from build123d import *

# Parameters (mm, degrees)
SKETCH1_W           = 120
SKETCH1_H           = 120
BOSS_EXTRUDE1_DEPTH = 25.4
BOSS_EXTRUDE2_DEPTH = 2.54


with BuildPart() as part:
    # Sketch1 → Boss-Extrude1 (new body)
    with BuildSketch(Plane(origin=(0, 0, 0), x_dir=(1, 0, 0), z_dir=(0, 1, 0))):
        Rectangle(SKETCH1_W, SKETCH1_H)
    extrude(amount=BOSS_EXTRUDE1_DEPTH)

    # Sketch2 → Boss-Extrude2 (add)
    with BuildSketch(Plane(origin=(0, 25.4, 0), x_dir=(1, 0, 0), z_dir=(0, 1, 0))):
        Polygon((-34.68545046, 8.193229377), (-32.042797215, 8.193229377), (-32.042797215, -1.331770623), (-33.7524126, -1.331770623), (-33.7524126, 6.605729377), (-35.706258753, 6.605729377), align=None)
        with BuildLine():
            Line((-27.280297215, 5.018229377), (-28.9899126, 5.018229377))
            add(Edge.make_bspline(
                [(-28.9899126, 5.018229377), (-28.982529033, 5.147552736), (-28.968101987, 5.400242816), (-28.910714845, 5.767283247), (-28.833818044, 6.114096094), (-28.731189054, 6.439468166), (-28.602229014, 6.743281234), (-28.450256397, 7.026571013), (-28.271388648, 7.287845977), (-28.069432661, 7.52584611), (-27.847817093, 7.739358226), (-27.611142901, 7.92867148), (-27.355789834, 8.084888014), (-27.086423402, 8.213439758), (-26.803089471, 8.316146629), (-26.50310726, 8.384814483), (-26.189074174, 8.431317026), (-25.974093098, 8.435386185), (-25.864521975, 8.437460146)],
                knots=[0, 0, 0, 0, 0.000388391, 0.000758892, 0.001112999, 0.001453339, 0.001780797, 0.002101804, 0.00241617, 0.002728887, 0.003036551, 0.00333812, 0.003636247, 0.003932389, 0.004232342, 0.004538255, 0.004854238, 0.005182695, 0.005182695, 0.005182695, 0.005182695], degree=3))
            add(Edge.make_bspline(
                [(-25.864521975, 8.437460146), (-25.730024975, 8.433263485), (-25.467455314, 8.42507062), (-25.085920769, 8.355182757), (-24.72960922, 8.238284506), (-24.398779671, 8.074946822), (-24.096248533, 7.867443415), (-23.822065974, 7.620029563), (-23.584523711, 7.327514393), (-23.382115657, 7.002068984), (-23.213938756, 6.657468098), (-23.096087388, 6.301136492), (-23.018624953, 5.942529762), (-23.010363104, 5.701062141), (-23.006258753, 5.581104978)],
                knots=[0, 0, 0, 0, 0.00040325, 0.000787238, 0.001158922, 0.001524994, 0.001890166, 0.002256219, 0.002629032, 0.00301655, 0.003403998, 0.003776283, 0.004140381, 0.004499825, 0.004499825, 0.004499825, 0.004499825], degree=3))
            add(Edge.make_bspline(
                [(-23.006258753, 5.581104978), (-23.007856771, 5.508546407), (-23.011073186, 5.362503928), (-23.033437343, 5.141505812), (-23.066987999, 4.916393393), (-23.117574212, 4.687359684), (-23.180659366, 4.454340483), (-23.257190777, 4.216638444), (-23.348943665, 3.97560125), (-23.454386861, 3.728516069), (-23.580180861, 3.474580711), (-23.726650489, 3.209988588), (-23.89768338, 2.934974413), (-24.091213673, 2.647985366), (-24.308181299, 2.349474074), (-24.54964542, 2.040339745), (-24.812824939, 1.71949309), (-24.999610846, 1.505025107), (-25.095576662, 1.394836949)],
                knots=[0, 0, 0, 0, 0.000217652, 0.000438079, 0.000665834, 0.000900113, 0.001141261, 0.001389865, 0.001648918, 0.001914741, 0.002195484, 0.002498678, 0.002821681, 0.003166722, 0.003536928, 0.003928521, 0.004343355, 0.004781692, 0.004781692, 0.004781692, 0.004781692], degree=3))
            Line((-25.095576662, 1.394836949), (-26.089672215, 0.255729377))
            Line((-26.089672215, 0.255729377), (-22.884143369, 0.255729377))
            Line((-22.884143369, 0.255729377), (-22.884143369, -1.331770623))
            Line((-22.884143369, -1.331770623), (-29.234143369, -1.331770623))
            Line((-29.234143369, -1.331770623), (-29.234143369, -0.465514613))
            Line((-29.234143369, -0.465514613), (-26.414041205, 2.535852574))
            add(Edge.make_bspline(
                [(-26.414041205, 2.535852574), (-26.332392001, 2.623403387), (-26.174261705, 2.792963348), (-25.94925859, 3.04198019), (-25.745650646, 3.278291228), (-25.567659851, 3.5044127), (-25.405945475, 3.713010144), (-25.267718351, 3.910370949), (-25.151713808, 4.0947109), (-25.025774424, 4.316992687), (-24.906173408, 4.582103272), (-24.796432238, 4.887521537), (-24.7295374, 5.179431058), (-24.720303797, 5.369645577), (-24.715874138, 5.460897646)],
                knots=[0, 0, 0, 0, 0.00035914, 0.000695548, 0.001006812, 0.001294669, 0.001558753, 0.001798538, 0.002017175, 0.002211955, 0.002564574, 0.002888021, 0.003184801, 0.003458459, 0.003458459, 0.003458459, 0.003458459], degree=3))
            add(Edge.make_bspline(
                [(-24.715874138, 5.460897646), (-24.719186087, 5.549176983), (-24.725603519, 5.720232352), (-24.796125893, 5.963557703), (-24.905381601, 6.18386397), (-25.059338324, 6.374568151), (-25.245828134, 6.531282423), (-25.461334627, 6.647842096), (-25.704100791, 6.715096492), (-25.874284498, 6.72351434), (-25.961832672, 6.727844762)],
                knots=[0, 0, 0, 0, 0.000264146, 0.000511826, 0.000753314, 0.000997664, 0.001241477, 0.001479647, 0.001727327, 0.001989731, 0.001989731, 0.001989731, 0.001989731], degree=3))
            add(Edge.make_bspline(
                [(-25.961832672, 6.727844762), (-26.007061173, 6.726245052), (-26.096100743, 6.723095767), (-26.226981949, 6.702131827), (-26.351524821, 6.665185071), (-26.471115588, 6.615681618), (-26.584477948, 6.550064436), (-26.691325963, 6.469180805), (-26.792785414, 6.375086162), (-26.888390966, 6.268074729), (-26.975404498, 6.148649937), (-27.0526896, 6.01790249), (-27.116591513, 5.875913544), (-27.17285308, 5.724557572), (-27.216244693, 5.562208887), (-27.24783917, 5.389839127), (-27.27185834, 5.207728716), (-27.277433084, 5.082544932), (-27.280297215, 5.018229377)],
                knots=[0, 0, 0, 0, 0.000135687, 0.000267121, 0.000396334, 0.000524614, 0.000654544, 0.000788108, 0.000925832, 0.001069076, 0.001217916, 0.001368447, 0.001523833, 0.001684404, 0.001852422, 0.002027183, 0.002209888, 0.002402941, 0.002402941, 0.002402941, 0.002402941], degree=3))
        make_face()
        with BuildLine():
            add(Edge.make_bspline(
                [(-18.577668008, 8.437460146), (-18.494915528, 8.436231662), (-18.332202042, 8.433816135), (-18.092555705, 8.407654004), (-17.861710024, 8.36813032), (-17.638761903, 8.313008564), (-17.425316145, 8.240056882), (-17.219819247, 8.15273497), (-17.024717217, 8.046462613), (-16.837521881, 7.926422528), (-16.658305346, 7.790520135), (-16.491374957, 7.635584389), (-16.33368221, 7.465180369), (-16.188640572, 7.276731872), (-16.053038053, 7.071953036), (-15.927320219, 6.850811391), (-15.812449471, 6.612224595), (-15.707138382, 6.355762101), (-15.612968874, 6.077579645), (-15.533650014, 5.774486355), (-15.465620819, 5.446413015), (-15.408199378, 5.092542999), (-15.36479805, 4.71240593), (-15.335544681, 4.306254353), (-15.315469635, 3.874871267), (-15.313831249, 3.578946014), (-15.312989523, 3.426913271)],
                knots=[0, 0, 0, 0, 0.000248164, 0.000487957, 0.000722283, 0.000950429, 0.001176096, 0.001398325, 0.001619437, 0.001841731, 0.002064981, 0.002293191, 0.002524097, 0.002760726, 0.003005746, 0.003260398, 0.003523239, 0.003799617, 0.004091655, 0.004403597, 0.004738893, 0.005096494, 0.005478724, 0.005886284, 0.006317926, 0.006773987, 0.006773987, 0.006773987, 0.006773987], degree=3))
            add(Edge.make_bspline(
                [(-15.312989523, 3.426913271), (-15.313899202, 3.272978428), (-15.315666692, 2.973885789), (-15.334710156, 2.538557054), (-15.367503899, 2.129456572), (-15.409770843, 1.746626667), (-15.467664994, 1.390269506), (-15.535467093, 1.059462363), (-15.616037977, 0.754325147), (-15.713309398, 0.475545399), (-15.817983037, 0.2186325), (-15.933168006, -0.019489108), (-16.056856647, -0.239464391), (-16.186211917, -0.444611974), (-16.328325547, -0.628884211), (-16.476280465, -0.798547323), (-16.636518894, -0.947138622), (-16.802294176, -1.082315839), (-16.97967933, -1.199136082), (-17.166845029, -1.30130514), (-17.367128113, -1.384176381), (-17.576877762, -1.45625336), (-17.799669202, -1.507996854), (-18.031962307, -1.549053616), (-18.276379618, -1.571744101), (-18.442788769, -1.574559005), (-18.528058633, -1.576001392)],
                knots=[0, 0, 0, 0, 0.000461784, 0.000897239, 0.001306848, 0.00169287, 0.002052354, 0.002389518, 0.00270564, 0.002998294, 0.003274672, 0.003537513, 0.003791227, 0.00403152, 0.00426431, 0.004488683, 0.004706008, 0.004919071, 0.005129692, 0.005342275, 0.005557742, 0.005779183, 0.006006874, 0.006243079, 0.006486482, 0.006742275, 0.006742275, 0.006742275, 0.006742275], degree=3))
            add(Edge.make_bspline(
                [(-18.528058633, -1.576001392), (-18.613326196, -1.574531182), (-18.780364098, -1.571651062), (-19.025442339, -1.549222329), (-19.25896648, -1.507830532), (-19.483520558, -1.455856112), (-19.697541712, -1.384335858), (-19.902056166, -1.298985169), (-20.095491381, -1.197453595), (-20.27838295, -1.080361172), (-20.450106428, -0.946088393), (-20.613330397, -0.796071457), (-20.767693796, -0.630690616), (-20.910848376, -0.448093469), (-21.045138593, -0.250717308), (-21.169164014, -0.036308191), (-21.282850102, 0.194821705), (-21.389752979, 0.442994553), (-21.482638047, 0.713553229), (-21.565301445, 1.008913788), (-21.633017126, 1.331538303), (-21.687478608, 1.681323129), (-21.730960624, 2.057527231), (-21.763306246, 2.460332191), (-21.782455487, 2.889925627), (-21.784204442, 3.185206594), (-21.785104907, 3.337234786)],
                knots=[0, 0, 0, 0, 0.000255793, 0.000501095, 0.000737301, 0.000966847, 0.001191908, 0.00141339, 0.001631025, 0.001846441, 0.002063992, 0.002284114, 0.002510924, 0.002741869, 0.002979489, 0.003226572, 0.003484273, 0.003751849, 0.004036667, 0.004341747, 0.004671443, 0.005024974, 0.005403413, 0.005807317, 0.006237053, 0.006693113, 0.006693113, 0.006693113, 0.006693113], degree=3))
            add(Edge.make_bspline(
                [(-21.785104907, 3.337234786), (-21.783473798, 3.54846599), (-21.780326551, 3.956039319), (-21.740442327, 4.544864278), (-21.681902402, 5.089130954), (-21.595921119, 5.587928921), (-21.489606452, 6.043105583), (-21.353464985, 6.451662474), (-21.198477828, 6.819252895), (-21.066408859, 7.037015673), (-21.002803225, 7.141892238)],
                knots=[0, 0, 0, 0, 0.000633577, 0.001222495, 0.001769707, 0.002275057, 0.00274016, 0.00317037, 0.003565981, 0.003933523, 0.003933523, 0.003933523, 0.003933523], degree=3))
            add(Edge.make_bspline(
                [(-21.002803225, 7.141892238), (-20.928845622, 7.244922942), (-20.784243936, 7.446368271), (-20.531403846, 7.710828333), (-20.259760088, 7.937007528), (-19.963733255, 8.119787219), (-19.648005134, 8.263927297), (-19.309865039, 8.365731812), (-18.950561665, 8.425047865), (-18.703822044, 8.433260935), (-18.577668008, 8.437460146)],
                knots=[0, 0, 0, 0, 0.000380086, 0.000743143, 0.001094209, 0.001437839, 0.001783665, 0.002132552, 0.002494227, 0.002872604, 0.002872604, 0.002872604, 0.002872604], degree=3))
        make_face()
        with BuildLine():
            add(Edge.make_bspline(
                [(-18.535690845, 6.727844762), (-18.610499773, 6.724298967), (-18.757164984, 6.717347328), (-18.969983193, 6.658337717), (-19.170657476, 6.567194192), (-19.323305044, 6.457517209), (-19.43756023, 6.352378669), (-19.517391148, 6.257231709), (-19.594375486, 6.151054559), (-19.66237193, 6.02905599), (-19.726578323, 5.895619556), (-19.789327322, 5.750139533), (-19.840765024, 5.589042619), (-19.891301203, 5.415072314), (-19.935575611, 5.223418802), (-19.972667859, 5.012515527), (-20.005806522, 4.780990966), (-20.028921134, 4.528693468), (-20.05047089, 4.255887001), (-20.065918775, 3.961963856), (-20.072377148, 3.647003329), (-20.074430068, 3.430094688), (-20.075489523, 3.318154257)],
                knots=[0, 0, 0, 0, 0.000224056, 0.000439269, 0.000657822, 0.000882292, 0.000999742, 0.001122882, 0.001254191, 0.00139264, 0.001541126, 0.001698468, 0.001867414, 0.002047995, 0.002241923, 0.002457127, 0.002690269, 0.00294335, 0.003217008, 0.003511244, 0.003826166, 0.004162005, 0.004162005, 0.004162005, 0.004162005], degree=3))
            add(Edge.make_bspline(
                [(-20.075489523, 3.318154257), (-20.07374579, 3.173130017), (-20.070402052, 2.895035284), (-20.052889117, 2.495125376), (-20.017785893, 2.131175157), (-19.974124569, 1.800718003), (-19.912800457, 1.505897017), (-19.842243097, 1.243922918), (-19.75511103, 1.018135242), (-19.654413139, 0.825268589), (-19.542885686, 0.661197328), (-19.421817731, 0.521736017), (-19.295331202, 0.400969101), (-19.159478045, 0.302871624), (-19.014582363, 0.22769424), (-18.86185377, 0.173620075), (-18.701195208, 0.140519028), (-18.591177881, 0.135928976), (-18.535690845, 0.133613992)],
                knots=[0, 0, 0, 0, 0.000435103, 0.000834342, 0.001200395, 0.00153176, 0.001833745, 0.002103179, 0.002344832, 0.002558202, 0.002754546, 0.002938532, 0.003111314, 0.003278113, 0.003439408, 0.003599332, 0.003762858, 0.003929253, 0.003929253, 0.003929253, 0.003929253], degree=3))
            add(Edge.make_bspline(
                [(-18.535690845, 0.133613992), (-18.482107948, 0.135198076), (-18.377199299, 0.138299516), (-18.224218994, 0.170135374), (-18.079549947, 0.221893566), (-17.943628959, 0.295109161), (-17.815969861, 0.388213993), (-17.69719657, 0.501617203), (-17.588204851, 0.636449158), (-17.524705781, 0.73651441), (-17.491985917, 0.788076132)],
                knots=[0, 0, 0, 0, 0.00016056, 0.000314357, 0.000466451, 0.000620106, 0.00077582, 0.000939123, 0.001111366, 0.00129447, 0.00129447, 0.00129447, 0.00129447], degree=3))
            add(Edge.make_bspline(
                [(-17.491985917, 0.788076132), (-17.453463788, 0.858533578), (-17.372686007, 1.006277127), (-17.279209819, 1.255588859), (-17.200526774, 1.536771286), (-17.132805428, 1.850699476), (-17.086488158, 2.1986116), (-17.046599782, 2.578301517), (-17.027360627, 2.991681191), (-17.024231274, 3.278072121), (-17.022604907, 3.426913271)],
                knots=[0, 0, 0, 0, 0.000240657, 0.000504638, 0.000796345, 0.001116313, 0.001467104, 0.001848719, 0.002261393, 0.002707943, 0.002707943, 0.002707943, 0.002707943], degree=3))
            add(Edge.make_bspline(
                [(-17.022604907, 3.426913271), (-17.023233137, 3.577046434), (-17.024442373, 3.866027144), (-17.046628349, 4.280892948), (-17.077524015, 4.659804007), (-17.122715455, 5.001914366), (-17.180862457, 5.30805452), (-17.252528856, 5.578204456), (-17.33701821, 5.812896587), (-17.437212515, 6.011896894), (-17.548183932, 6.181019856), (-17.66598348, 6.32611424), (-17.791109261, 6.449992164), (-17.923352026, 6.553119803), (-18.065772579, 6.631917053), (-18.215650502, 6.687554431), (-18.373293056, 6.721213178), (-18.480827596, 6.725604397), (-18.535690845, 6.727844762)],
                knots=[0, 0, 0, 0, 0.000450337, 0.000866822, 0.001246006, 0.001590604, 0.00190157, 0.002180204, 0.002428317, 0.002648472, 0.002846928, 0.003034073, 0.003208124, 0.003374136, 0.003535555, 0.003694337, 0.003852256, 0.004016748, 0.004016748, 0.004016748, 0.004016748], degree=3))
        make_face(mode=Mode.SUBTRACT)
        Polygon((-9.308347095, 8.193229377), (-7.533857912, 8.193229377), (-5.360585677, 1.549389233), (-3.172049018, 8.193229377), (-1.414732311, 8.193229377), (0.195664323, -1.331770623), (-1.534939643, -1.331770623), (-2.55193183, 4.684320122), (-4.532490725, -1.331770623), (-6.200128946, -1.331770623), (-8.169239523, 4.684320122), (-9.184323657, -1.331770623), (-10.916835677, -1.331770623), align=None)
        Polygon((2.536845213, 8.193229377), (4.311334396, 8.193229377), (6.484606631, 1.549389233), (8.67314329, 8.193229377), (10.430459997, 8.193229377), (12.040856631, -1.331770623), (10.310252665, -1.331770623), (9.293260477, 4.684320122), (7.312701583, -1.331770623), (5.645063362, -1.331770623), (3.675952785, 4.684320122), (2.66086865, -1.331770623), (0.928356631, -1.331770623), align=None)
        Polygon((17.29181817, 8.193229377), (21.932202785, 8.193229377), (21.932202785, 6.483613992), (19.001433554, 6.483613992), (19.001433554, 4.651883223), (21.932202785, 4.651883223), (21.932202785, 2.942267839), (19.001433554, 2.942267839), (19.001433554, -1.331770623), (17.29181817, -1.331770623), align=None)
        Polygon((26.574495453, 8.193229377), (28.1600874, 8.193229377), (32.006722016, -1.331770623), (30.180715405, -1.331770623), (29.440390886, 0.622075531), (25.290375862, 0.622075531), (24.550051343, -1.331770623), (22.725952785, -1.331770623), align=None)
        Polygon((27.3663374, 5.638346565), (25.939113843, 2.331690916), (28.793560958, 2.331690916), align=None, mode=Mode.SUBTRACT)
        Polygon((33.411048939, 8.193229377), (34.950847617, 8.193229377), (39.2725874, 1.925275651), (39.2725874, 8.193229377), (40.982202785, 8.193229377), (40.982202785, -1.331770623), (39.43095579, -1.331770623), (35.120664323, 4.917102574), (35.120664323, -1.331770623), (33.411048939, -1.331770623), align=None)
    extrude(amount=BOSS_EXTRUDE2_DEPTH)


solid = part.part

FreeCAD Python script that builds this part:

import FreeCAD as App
import Part
import Sketcher

V = App.Vector
Q = App.Units.Quantity


def add_polygon(sketch, points):
    """Adds a closed chain of lines whose ends are joined by coincident constraints."""
    first, n = sketch.GeometryCount, len(points)
    for a, b in zip(points, points[1:] + points[:1]):
        sketch.addGeometry(Part.LineSegment(App.Vector(*a, 0), App.Vector(*b, 0)), False)
    for i in range(n):
        sketch.addConstraint(Sketcher.Constraint("Coincident", first + i, 2, first + (i + 1) % n, 1))

doc = App.newDocument("Part")
body = doc.addObject("PartDesign::Body", "Body")

# Sketch on XZ plane
sketch1 = body.newObject("Sketcher::SketchObject", "Sketch")
sketch1.AttachmentSupport = (doc.getObject("XZ_Plane"), [""])
sketch1.MapMode = "FlatFace"
add_polygon(sketch1, [(-60, -60), (-60, 60), (60, 60), (60, -60)])  # lines 0-3
sketch1.addConstraint(Sketcher.Constraint("Vertical", 0))
sketch1.addConstraint(Sketcher.Constraint("Horizontal", 1))
sketch1.addConstraint(Sketcher.Constraint("Vertical", 2))
sketch1.addConstraint(Sketcher.Constraint("Horizontal", 3))
sketch1.addConstraint(Sketcher.Constraint("Symmetric", 0, 2, 2, 2, -1, 1))
sketch1.addConstraint(Sketcher.Constraint("Equal", 3, 0))
sketch1.addConstraint(Sketcher.Constraint("DistanceX", 1, 1, 1, 2, 120.0))
pad1 = body.newObject("PartDesign::Pad", "Pad")
pad1.Profile = sketch1
pad1.Length = Q("1 in")
pad1.Reversed = True

# Sketch on XZ plane
sketch2 = body.newObject("Sketcher::SketchObject", "Sketch001")
sketch2.AttachmentSupport = (doc.getObject("XZ_Plane"), [""])
sketch2.MapMode = "FlatFace"
sketch2.AttachmentOffset = App.Placement(V(0, 0, -1 * 25.4), App.Rotation())
add_polygon(sketch2, [(-32.042797, -8.193229), (-34.68545, -8.193229), (-35.706259, -6.605729), (-33.752413, -6.605729), (-33.752413, 1.331771), (-32.042797, 1.331771)])  # lines 0-5
sketch2.addGeometry(Part.LineSegment(V(-28.989913, -5.018229, 0), V(-27.280297, -5.018229, 0)), False)  # 6
sketch2.addGeometry(Part.BSplineCurve([V(-25.961833, -6.727845, 0), V(-26.007061, -6.726245, 0), V(-26.096101, -6.723096, 0), V(-26.226982, -6.702132, 0), V(-26.351525, -6.665185, 0), V(-26.471116, -6.615682, 0), V(-26.584478, -6.550064, 0), V(-26.691326, -6.469181, 0), V(-26.792785, -6.375086, 0), V(-26.888391, -6.268075, 0), V(-26.975404, -6.14865, 0), V(-27.05269, -6.017902, 0), V(-27.116592, -5.875914, 0), V(-27.172853, -5.724558, 0), V(-27.216245, -5.562209, 0), V(-27.247839, -5.389839, 0), V(-27.271858, -5.207729, 0), V(-27.277433, -5.082545, 0), V(-27.280297, -5.018229, 0)], [4, 1, 1, 1, 1, 1, 1, 1, 1, 1, 1, 1, 1, 1, 1, 1, 4], [0, 0.000135687, 0.000267121, 0.000396334, 0.000524614, 0.000654544, 0.000788108, 0.000925832, 0.001069076, 0.001217916, 0.001368447, 0.001523833, 0.001684404, 0.001852422, 0.002027183, 0.002209888, 0.002402941], False, 3, [1, 1, 1, 1, 1, 1, 1, 1, 1, 1, 1, 1, 1, 1, 1, 1, 1, 1, 1], False), False)  # 7
sketch2.addGeometry(Part.BSplineCurve([V(-24.715874, -5.460898, 0), V(-24.719186, -5.549177, 0), V(-24.725604, -5.720232, 0), V(-24.796126, -5.963558, 0), V(-24.905382, -6.183864, 0), V(-25.059338, -6.374568, 0), V(-25.245828, -6.531282, 0), V(-25.461335, -6.647842, 0), V(-25.704101, -6.715096, 0), V(-25.874284, -6.723514, 0), V(-25.961833, -6.727845, 0)], [4, 1, 1, 1, 1, 1, 1, 1, 4], [0, 0.000264146, 0.000511826, 0.000753314, 0.000997664, 0.001241477, 0.001479647, 0.001727327, 0.001989731], False, 3, [1, 1, 1, 1, 1, 1, 1, 1, 1, 1, 1], False), False)  # 8
sketch2.addGeometry(Part.BSplineCurve([V(-26.414041, -2.535853, 0), V(-26.332392, -2.623403, 0), V(-26.174262, -2.792963, 0), V(-25.949259, -3.04198, 0), V(-25.745651, -3.278291, 0), V(-25.56766, -3.504413, 0), V(-25.405945, -3.71301, 0), V(-25.267718, -3.910371, 0), V(-25.151714, -4.094711, 0), V(-25.025774, -4.316993, 0), V(-24.906173, -4.582103, 0), V(-24.796432, -4.887522, 0), V(-24.729537, -5.179431, 0), V(-24.720304, -5.369646, 0), V(-24.715874, -5.460898, 0)], [4, 1, 1, 1, 1, 1, 1, 1, 1, 1, 1, 1, 4], [0, 0.00035914, 0.000695548, 0.001006812, 0.001294669, 0.001558753, 0.001798538, 0.002017175, 0.002211955, 0.002564574, 0.002888021, 0.003184801, 0.003458459], False, 3, [1, 1, 1, 1, 1, 1, 1, 1, 1, 1, 1, 1, 1, 1, 1], False), False)  # 9
sketch2.addGeometry(Part.LineSegment(V(-26.414041, -2.535853, 0), V(-29.234143, 0.465515, 0)), False)  # 10
sketch2.addGeometry(Part.LineSegment(V(-29.234143, 0.465515, 0), V(-29.234143, 1.331771, 0)), False)  # 11
sketch2.addGeometry(Part.LineSegment(V(-29.234143, 1.331771, 0), V(-22.884143, 1.331771, 0)), False)  # 12
sketch2.addGeometry(Part.LineSegment(V(-22.884143, 1.331771, 0), V(-22.884143, -0.255729, 0)), False)  # 13
sketch2.addGeometry(Part.LineSegment(V(-22.884143, -0.255729, 0), V(-26.089672, -0.255729, 0)), False)  # 14
sketch2.addGeometry(Part.LineSegment(V(-26.089672, -0.255729, 0), V(-25.095577, -1.394837, 0)), False)  # 15
sketch2.addGeometry(Part.BSplineCurve([V(-23.006259, -5.581105, 0), V(-23.007857, -5.508546, 0), V(-23.011073, -5.362504, 0), V(-23.033437, -5.141506, 0), V(-23.066988, -4.916393, 0), V(-23.117574, -4.68736, 0), V(-23.180659, -4.45434, 0), V(-23.257191, -4.216638, 0), V(-23.348944, -3.975601, 0), V(-23.454387, -3.728516, 0), V(-23.580181, -3.474581, 0), V(-23.72665, -3.209989, 0), V(-23.897683, -2.934974, 0), V(-24.091214, -2.647985, 0), V(-24.308181, -2.349474, 0), V(-24.549645, -2.04034, 0), V(-24.812825, -1.719493, 0), V(-24.999611, -1.505025, 0), V(-25.095577, -1.394837, 0)], [4, 1, 1, 1, 1, 1, 1, 1, 1, 1, 1, 1, 1, 1, 1, 1, 4], [0, 0.000217652, 0.000438079, 0.000665834, 0.000900113, 0.001141261, 0.001389865, 0.001648918, 0.001914741, 0.002195484, 0.002498678, 0.002821681, 0.003166722, 0.003536928, 0.003928521, 0.004343355, 0.004781692], False, 3, [1, 1, 1, 1, 1, 1, 1, 1, 1, 1, 1, 1, 1, 1, 1, 1, 1, 1, 1], False), False)  # 16
sketch2.addGeometry(Part.BSplineCurve([V(-25.864522, -8.43746, 0), V(-25.730025, -8.433263, 0), V(-25.467455, -8.425071, 0), V(-25.085921, -8.355183, 0), V(-24.729609, -8.238285, 0), V(-24.39878, -8.074947, 0), V(-24.096249, -7.867443, 0), V(-23.822066, -7.62003, 0), V(-23.584524, -7.327514, 0), V(-23.382116, -7.002069, 0), V(-23.213939, -6.657468, 0), V(-23.096087, -6.301136, 0), V(-23.018625, -5.94253, 0), V(-23.010363, -5.701062, 0), V(-23.006259, -5.581105, 0)], [4, 1, 1, 1, 1, 1, 1, 1, 1, 1, 1, 1, 4], [0, 0.00040325, 0.000787238, 0.001158922, 0.001524994, 0.001890166, 0.002256219, 0.002629032, 0.00301655, 0.003403998, 0.003776283, 0.004140381, 0.004499825], False, 3, [1, 1, 1, 1, 1, 1, 1, 1, 1, 1, 1, 1, 1, 1, 1], False), False)  # 17
sketch2.addGeometry(Part.BSplineCurve([V(-28.989913, -5.018229, 0), V(-28.982529, -5.147553, 0), V(-28.968102, -5.400243, 0), V(-28.910715, -5.767283, 0), V(-28.833818, -6.114096, 0), V(-28.731189, -6.439468, 0), V(-28.602229, -6.743281, 0), V(-28.450256, -7.026571, 0), V(-28.271389, -7.287846, 0), V(-28.069433, -7.525846, 0), V(-27.847817, -7.739358, 0), V(-27.611143, -7.928671, 0), V(-27.35579, -8.084888, 0), V(-27.086423, -8.21344, 0), V(-26.803089, -8.316147, 0), V(-26.503107, -8.384814, 0), V(-26.189074, -8.431317, 0), V(-25.974093, -8.435386, 0), V(-25.864522, -8.43746, 0)], [4, 1, 1, 1, 1, 1, 1, 1, 1, 1, 1, 1, 1, 1, 1, 1, 4], [0, 0.000388391, 0.000758892, 0.001112999, 0.001453339, 0.001780797, 0.002101804, 0.00241617, 0.002728887, 0.003036551, 0.00333812, 0.003636247, 0.003932389, 0.004232342, 0.004538255, 0.004854238, 0.005182695], False, 3, [1, 1, 1, 1, 1, 1, 1, 1, 1, 1, 1, 1, 1, 1, 1, 1, 1, 1, 1], False), False)  # 18
sketch2.addGeometry(Part.BSplineCurve([V(-18.577668, -8.43746, 0), V(-18.494916, -8.436232, 0), V(-18.332202, -8.433816, 0), V(-18.092556, -8.407654, 0), V(-17.86171, -8.36813, 0), V(-17.638762, -8.313009, 0), V(-17.425316, -8.240057, 0), V(-17.219819, -8.152735, 0), V(-17.024717, -8.046463, 0), V(-16.837522, -7.926423, 0), V(-16.658305, -7.79052, 0), V(-16.491375, -7.635584, 0), V(-16.333682, -7.46518, 0), V(-16.188641, -7.276732, 0), V(-16.053038, -7.071953, 0), V(-15.92732, -6.850811, 0), V(-15.812449, -6.612225, 0), V(-15.707138, -6.355762, 0), V(-15.612969, -6.07758, 0), V(-15.53365, -5.774486, 0), V(-15.465621, -5.446413, 0), V(-15.408199, -5.092543, 0), V(-15.364798, -4.712406, 0), V(-15.335545, -4.306254, 0), V(-15.31547, -3.874871, 0), V(-15.313831, -3.578946, 0), V(-15.31299, -3.426913, 0)], [4, 1, 1, 1, 1, 1, 1, 1, 1, 1, 1, 1, 1, 1, 1, 1, 1, 1, 1, 1, 1, 1, 1, 1, 4], [0, 0.000248164, 0.000487957, 0.000722283, 0.000950429, 0.001176096, 0.001398325, 0.001619437, 0.001841731, 0.002064981, 0.002293191, 0.002524097, 0.002760726, 0.003005746, 0.003260398, 0.003523239, 0.003799617, 0.004091655, 0.004403597, 0.004738893, 0.005096494, 0.005478724, 0.005886284, 0.006317926, 0.006773987], False, 3, [1, 1, 1, 1, 1, 1, 1, 1, 1, 1, 1, 1, 1, 1, 1, 1, 1, 1, 1, 1, 1, 1, 1, 1, 1, 1, 1], False), False)  # 19
sketch2.addGeometry(Part.BSplineCurve([V(-21.002803, -7.141892, 0), V(-20.928846, -7.244923, 0), V(-20.784244, -7.446368, 0), V(-20.531404, -7.710828, 0), V(-20.25976, -7.937008, 0), V(-19.963733, -8.119787, 0), V(-19.648005, -8.263927, 0), V(-19.309865, -8.365732, 0), V(-18.950562, -8.425048, 0), V(-18.703822, -8.433261, 0), V(-18.577668, -8.43746, 0)], [4, 1, 1, 1, 1, 1, 1, 1, 4], [0, 0.000380086, 0.000743143, 0.001094209, 0.001437839, 0.001783665, 0.002132552, 0.002494227, 0.002872604], False, 3, [1, 1, 1, 1, 1, 1, 1, 1, 1, 1, 1], False), False)  # 20
sketch2.addGeometry(Part.BSplineCurve([V(-21.785105, -3.337235, 0), V(-21.783474, -3.548466, 0), V(-21.780327, -3.956039, 0), V(-21.740442, -4.544864, 0), V(-21.681902, -5.089131, 0), V(-21.595921, -5.587929, 0), V(-21.489606, -6.043106, 0), V(-21.353465, -6.451662, 0), V(-21.198478, -6.819253, 0), V(-21.066409, -7.037016, 0), V(-21.002803, -7.141892, 0)], [4, 1, 1, 1, 1, 1, 1, 1, 4], [0, 0.000633577, 0.001222495, 0.001769707, 0.002275057, 0.00274016, 0.00317037, 0.003565981, 0.003933523], False, 3, [1, 1, 1, 1, 1, 1, 1, 1, 1, 1, 1], False), False)  # 21
sketch2.addGeometry(Part.BSplineCurve([V(-18.528059, 1.576001, 0), V(-18.613326, 1.574531, 0), V(-18.780364, 1.571651, 0), V(-19.025442, 1.549222, 0), V(-19.258966, 1.507831, 0), V(-19.483521, 1.455856, 0), V(-19.697542, 1.384336, 0), V(-19.902056, 1.298985, 0), V(-20.095491, 1.197454, 0), V(-20.278383, 1.080361, 0), V(-20.450106, 0.946088, 0), V(-20.61333, 0.796071, 0), V(-20.767694, 0.630691, 0), V(-20.910848, 0.448093, 0), V(-21.045139, 0.250717, 0), V(-21.169164, 0.036308, 0), V(-21.28285, -0.194822, 0), V(-21.389753, -0.442995, 0), V(-21.482638, -0.713553, 0), V(-21.565301, -1.008914, 0), V(-21.633017, -1.331538, 0), V(-21.687479, -1.681323, 0), V(-21.730961, -2.057527, 0), V(-21.763306, -2.460332, 0), V(-21.782455, -2.889926, 0), V(-21.784204, -3.185207, 0), V(-21.785105, -3.337235, 0)], [4, 1, 1, 1, 1, 1, 1, 1, 1, 1, 1, 1, 1, 1, 1, 1, 1, 1, 1, 1, 1, 1, 1, 1, 4], [0, 0.000255793, 0.000501095, 0.000737301, 0.000966847, 0.001191908, 0.00141339, 0.001631025, 0.001846441, 0.002063992, 0.002284114, 0.002510924, 0.002741869, 0.002979489, 0.003226572, 0.003484273, 0.003751849, 0.004036667, 0.004341747, 0.004671443, 0.005024974, 0.005403413, 0.005807317, 0.006237053, 0.006693113], False, 3, [1, 1, 1, 1, 1, 1, 1, 1, 1, 1, 1, 1, 1, 1, 1, 1, 1, 1, 1, 1, 1, 1, 1, 1, 1, 1, 1], False), False)  # 22
sketch2.addGeometry(Part.BSplineCurve([V(-15.31299, -3.426913, 0), V(-15.313899, -3.272978, 0), V(-15.315667, -2.973886, 0), V(-15.33471, -2.538557, 0), V(-15.367504, -2.129457, 0), V(-15.409771, -1.746627, 0), V(-15.467665, -1.39027, 0), V(-15.535467, -1.059462, 0), V(-15.616038, -0.754325, 0), V(-15.713309, -0.475545, 0), V(-15.817983, -0.218633, 0), V(-15.933168, 0.019489, 0), V(-16.056857, 0.239464, 0), V(-16.186212, 0.444612, 0), V(-16.328326, 0.628884, 0), V(-16.47628, 0.798547, 0), V(-16.636519, 0.947139, 0), V(-16.802294, 1.082316, 0), V(-16.979679, 1.199136, 0), V(-17.166845, 1.301305, 0), V(-17.367128, 1.384176, 0), V(-17.576878, 1.456253, 0), V(-17.799669, 1.507997, 0), V(-18.031962, 1.549054, 0), V(-18.27638, 1.571744, 0), V(-18.442789, 1.574559, 0), V(-18.528059, 1.576001, 0)], [4, 1, 1, 1, 1, 1, 1, 1, 1, 1, 1, 1, 1, 1, 1, 1, 1, 1, 1, 1, 1, 1, 1, 1, 4], [0, 0.000461784, 0.000897239, 0.001306848, 0.00169287, 0.002052354, 0.002389518, 0.00270564, 0.002998294, 0.003274672, 0.003537513, 0.003791227, 0.00403152, 0.00426431, 0.004488683, 0.004706008, 0.004919071, 0.005129692, 0.005342275, 0.005557742, 0.005779183, 0.006006874, 0.006243079, 0.006486482, 0.006742275], False, 3, [1, 1, 1, 1, 1, 1, 1, 1, 1, 1, 1, 1, 1, 1, 1, 1, 1, 1, 1, 1, 1, 1, 1, 1, 1, 1, 1], False), False)  # 23
sketch2.addGeometry(Part.BSplineCurve([V(-17.022605, -3.426913, 0), V(-17.023233, -3.577046, 0), V(-17.024442, -3.866027, 0), V(-17.046628, -4.280893, 0), V(-17.077524, -4.659804, 0), V(-17.122715, -5.001914, 0), V(-17.180862, -5.308055, 0), V(-17.252529, -5.578204, 0), V(-17.337018, -5.812897, 0), V(-17.437213, -6.011897, 0), V(-17.548184, -6.18102, 0), V(-17.665983, -6.326114, 0), V(-17.791109, -6.449992, 0), V(-17.923352, -6.55312, 0), V(-18.065773, -6.631917, 0), V(-18.215651, -6.687554, 0), V(-18.373293, -6.721213, 0), V(-18.480828, -6.725604, 0), V(-18.535691, -6.727845, 0)], [4, 1, 1, 1, 1, 1, 1, 1, 1, 1, 1, 1, 1, 1, 1, 1, 4], [0, 0.000450337, 0.000866822, 0.001246006, 0.001590604, 0.00190157, 0.002180204, 0.002428317, 0.002648472, 0.002846928, 0.003034073, 0.003208124, 0.003374136, 0.003535555, 0.003694337, 0.003852256, 0.004016748], False, 3, [1, 1, 1, 1, 1, 1, 1, 1, 1, 1, 1, 1, 1, 1, 1, 1, 1, 1, 1], False), False)  # 24
sketch2.addGeometry(Part.BSplineCurve([V(-17.491986, -0.788076, 0), V(-17.453464, -0.858534, 0), V(-17.372686, -1.006277, 0), V(-17.27921, -1.255589, 0), V(-17.200527, -1.536771, 0), V(-17.132805, -1.850699, 0), V(-17.086488, -2.198612, 0), V(-17.0466, -2.578302, 0), V(-17.027361, -2.991681, 0), V(-17.024231, -3.278072, 0), V(-17.022605, -3.426913, 0)], [4, 1, 1, 1, 1, 1, 1, 1, 4], [0, 0.000240657, 0.000504638, 0.000796345, 0.001116313, 0.001467104, 0.001848719, 0.002261393, 0.002707943], False, 3, [1, 1, 1, 1, 1, 1, 1, 1, 1, 1, 1], False), False)  # 25
sketch2.addGeometry(Part.BSplineCurve([V(-18.535691, -0.133614, 0), V(-18.482108, -0.135198, 0), V(-18.377199, -0.1383, 0), V(-18.224219, -0.170135, 0), V(-18.07955, -0.221894, 0), V(-17.943629, -0.295109, 0), V(-17.81597, -0.388214, 0), V(-17.697197, -0.501617, 0), V(-17.588205, -0.636449, 0), V(-17.524706, -0.736514, 0), V(-17.491986, -0.788076, 0)], [4, 1, 1, 1, 1, 1, 1, 1, 4], [0, 0.00016056, 0.000314357, 0.000466451, 0.000620106, 0.00077582, 0.000939123, 0.001111366, 0.00129447], False, 3, [1, 1, 1, 1, 1, 1, 1, 1, 1, 1, 1], False), False)  # 26
sketch2.addGeometry(Part.BSplineCurve([V(-20.07549, -3.318154, 0), V(-20.073746, -3.17313, 0), V(-20.070402, -2.895035, 0), V(-20.052889, -2.495125, 0), V(-20.017786, -2.131175, 0), V(-19.974125, -1.800718, 0), V(-19.9128, -1.505897, 0), V(-19.842243, -1.243923, 0), V(-19.755111, -1.018135, 0), V(-19.654413, -0.825269, 0), V(-19.542886, -0.661197, 0), V(-19.421818, -0.521736, 0), V(-19.295331, -0.400969, 0), V(-19.159478, -0.302872, 0), V(-19.014582, -0.227694, 0), V(-18.861854, -0.17362, 0), V(-18.701195, -0.140519, 0), V(-18.591178, -0.135929, 0), V(-18.535691, -0.133614, 0)], [4, 1, 1, 1, 1, 1, 1, 1, 1, 1, 1, 1, 1, 1, 1, 1, 4], [0, 0.000435103, 0.000834342, 0.001200395, 0.00153176, 0.001833745, 0.002103179, 0.002344832, 0.002558202, 0.002754546, 0.002938532, 0.003111314, 0.003278113, 0.003439408, 0.003599332, 0.003762858, 0.003929253], False, 3, [1, 1, 1, 1, 1, 1, 1, 1, 1, 1, 1, 1, 1, 1, 1, 1, 1, 1, 1], False), False)  # 27
sketch2.addGeometry(Part.BSplineCurve([V(-18.535691, -6.727845, 0), V(-18.6105, -6.724299, 0), V(-18.757165, -6.717347, 0), V(-18.969983, -6.658338, 0), V(-19.170657, -6.567194, 0), V(-19.323305, -6.457517, 0), V(-19.43756, -6.352379, 0), V(-19.517391, -6.257232, 0), V(-19.594375, -6.151055, 0), V(-19.662372, -6.029056, 0), V(-19.726578, -5.89562, 0), V(-19.789327, -5.75014, 0), V(-19.840765, -5.589043, 0), V(-19.891301, -5.415072, 0), V(-19.935576, -5.223419, 0), V(-19.972668, -5.012516, 0), V(-20.005807, -4.780991, 0), V(-20.028921, -4.528693, 0), V(-20.050471, -4.255887, 0), V(-20.065919, -3.961964, 0), V(-20.072377, -3.647003, 0), V(-20.07443, -3.430095, 0), V(-20.07549, -3.318154, 0)], [4, 1, 1, 1, 1, 1, 1, 1, 1, 1, 1, 1, 1, 1, 1, 1, 1, 1, 1, 1, 4], [0, 0.000224056, 0.000439269, 0.000657822, 0.000882292, 0.000999742, 0.001122882, 0.001254191, 0.00139264, 0.001541126, 0.001698468, 0.001867414, 0.002047995, 0.002241923, 0.002457127, 0.002690269, 0.00294335, 0.003217008, 0.003511244, 0.003826166, 0.004162005], False, 3, [1, 1, 1, 1, 1, 1, 1, 1, 1, 1, 1, 1, 1, 1, 1, 1, 1, 1, 1, 1, 1, 1, 1], False), False)  # 28
add_polygon(sketch2, [(-7.533858, -8.193229), (-9.308347, -8.193229), (-10.916836, 1.331771), (-9.184324, 1.331771), (-8.16924, -4.68432), (-6.200129, 1.331771), (-4.532491, 1.331771), (-2.551932, -4.68432), (-1.53494, 1.331771), (0.195664, 1.331771), (-1.414732, -8.193229), (-3.172049, -8.193229), (-5.360586, -1.549389)])  # lines 29-41
add_polygon(sketch2, [(4.311334, -8.193229), (2.536845, -8.193229), (0.928357, 1.331771), (2.660869, 1.331771), (3.675953, -4.68432), (5.645063, 1.331771), (7.312702, 1.331771), (9.29326, -4.68432), (10.310253, 1.331771), (12.040857, 1.331771), (10.43046, -8.193229), (8.673143, -8.193229), (6.484607, -1.549389)])  # lines 42-54
add_polygon(sketch2, [(21.932203, -8.193229), (17.291818, -8.193229), (17.291818, 1.331771), (19.001434, 1.331771), (19.001434, -2.942268), (21.932203, -2.942268), (21.932203, -4.651883), (19.001434, -4.651883), (19.001434, -6.483614), (21.932203, -6.483614)])  # lines 55-64
add_polygon(sketch2, [(28.160087, -8.193229), (26.574495, -8.193229), (22.725953, 1.331771), (24.550051, 1.331771), (25.290376, -0.622076), (29.440391, -0.622076), (30.180715, 1.331771), (32.006722, 1.331771)])  # lines 65-72
add_polygon(sketch2, [(27.366337, -5.638347), (28.793561, -2.331691), (25.939114, -2.331691)])  # lines 73-75
add_polygon(sketch2, [(34.950848, -8.193229), (33.411049, -8.193229), (33.411049, 1.331771), (35.120664, 1.331771), (35.120664, -4.917103), (39.430956, 1.331771), (40.982203, 1.331771), (40.982203, -8.193229), (39.272587, -8.193229), (39.272587, -1.925276)])  # lines 76-85
sketch2.addConstraint(Sketcher.Constraint("Block", 7))
sketch2.addConstraint(Sketcher.Constraint("Block", 8))
sketch2.addConstraint(Sketcher.Constraint("Block", 9))
sketch2.addConstraint(Sketcher.Constraint("Block", 16))
sketch2.addConstraint(Sketcher.Constraint("Block", 17))
sketch2.addConstraint(Sketcher.Constraint("Block", 18))
sketch2.addConstraint(Sketcher.Constraint("Block", 19))
sketch2.addConstraint(Sketcher.Constraint("Block", 20))
sketch2.addConstraint(Sketcher.Constraint("Block", 21))
sketch2.addConstraint(Sketcher.Constraint("Block", 22))
sketch2.addConstraint(Sketcher.Constraint("Block", 23))
sketch2.addConstraint(Sketcher.Constraint("Block", 24))
sketch2.addConstraint(Sketcher.Constraint("Block", 25))
sketch2.addConstraint(Sketcher.Constraint("Block", 26))
sketch2.addConstraint(Sketcher.Constraint("Block", 27))
sketch2.addConstraint(Sketcher.Constraint("Block", 28))
sketch2.addConstraint(Sketcher.Constraint("Coincident", 6, 2, 7, 2))
sketch2.addConstraint(Sketcher.Constraint("Coincident", 9, 1, 10, 1))
sketch2.addConstraint(Sketcher.Constraint("Coincident", 10, 2, 11, 1))
sketch2.addConstraint(Sketcher.Constraint("Coincident", 11, 2, 12, 1))
sketch2.addConstraint(Sketcher.Constraint("Coincident", 12, 2, 13, 1))
sketch2.addConstraint(Sketcher.Constraint("Coincident", 13, 2, 14, 1))
sketch2.addConstraint(Sketcher.Constraint("Coincident", 14, 2, 15, 1))
sketch2.addConstraint(Sketcher.Constraint("Coincident", 15, 2, 16, 2))
sketch2.addConstraint(Sketcher.Constraint("Coincident", 18, 1, 6, 1))
sketch2.addConstraint(Sketcher.Constraint("Horizontal", 0))
sketch2.addConstraint(Sketcher.Constraint("Horizontal", 2))
sketch2.addConstraint(Sketcher.Constraint("Vertical", 3))
sketch2.addConstraint(Sketcher.Constraint("Horizontal", 4))
sketch2.addConstraint(Sketcher.Constraint("Vertical", 5))
sketch2.addConstraint(Sketcher.Constraint("Vertical", 11))
sketch2.addConstraint(Sketcher.Constraint("Horizontal", 12))
sketch2.addConstraint(Sketcher.Constraint("Vertical", 13))
sketch2.addConstraint(Sketcher.Constraint("Horizontal", 14))
sketch2.addConstraint(Sketcher.Constraint("Horizontal", 29))
sketch2.addConstraint(Sketcher.Constraint("Horizontal", 31))
sketch2.addConstraint(Sketcher.Constraint("Horizontal", 34))
sketch2.addConstraint(Sketcher.Constraint("Horizontal", 37))
sketch2.addConstraint(Sketcher.Constraint("Horizontal", 39))
sketch2.addConstraint(Sketcher.Constraint("Horizontal", 42))
sketch2.addConstraint(Sketcher.Constraint("Horizontal", 44))
sketch2.addConstraint(Sketcher.Constraint("Horizontal", 47))
sketch2.addConstraint(Sketcher.Constraint("Horizontal", 50))
sketch2.addConstraint(Sketcher.Constraint("Horizontal", 52))
sketch2.addConstraint(Sketcher.Constraint("Horizontal", 55))
sketch2.addConstraint(Sketcher.Constraint("Vertical", 56))
sketch2.addConstraint(Sketcher.Constraint("Horizontal", 57))
sketch2.addConstraint(Sketcher.Constraint("Vertical", 58))
sketch2.addConstraint(Sketcher.Constraint("Horizontal", 59))
sketch2.addConstraint(Sketcher.Constraint("Vertical", 60))
sketch2.addConstraint(Sketcher.Constraint("Horizontal", 61))
sketch2.addConstraint(Sketcher.Constraint("Vertical", 62))
sketch2.addConstraint(Sketcher.Constraint("Horizontal", 63))
sketch2.addConstraint(Sketcher.Constraint("Vertical", 64))
sketch2.addConstraint(Sketcher.Constraint("Horizontal", 65))
sketch2.addConstraint(Sketcher.Constraint("Horizontal", 67))
sketch2.addConstraint(Sketcher.Constraint("Horizontal", 69))
sketch2.addConstraint(Sketcher.Constraint("Horizontal", 71))
sketch2.addConstraint(Sketcher.Constraint("Horizontal", 74))
sketch2.addConstraint(Sketcher.Constraint("Horizontal", 76))
sketch2.addConstraint(Sketcher.Constraint("Vertical", 77))
sketch2.addConstraint(Sketcher.Constraint("Horizontal", 78))
sketch2.addConstraint(Sketcher.Constraint("Vertical", 79))
sketch2.addConstraint(Sketcher.Constraint("Horizontal", 81))
sketch2.addConstraint(Sketcher.Constraint("Vertical", 82))
sketch2.addConstraint(Sketcher.Constraint("Horizontal", 83))
sketch2.addConstraint(Sketcher.Constraint("Vertical", 84))
sketch2.addConstraint(Sketcher.Constraint("DistanceX", 12, 1, 12, 2, Q("0.25 in")))
sketch2.addConstraint(Sketcher.Constraint("DistanceY", 3, 1, 3, 2, Q("0.3125 in")))
sketch2.addConstraint(Sketcher.Constraint("DistanceY", 5, 2, 5, 1, Q("0.375 in")))
sketch2.addConstraint(Sketcher.Constraint("DistanceY", 13, 2, 13, 1, Q("0.0625 in")))
sketch2.addConstraint(Sketcher.Constraint("DistanceY", 56, 1, 56, 2, Q("0.375 in")))
sketch2.addConstraint(Sketcher.Constraint("DistanceY", 77, 1, 77, 2, Q("0.375 in")))
sketch2.addConstraint(Sketcher.Constraint("DistanceY", 82, 2, 82, 1, Q("0.375 in")))
sketch2.addConstraint(Sketcher.Constraint("DistanceX", 67, 1, 67, 2, 1.824099))
sketch2.addConstraint(Sketcher.Constraint("DistanceX", 76, 2, 76, 1, 1.539799))
sketch2.addConstraint(Sketcher.Constraint("DistanceX", -1, 1, 80, 2, Q("1.5523998 in")))
sketch2.addConstraint(Sketcher.Constraint("Distance", 68, 2.089401))
sketch2.addConstraint(Sketcher.Constraint("Distance", 70, 2.089401))
sketch2.addConstraint(Sketcher.Constraint("Distance", 72, 10.272401))
sketch2.addConstraint(Sketcher.Constraint("DistanceX", 14, 2, 14, 1, 3.205529))
sketch2.addConstraint(Sketcher.Constraint("DistanceX", 29, 2, 29, 1, 1.774489))
sketch2.addConstraint(Sketcher.Constraint("DistanceX", 34, 1, 34, 2, 1.667638))
sketch2.addConstraint(Sketcher.Constraint("DistanceX", 42, 2, 42, 1, 1.774489))
sketch2.addConstraint(Sketcher.Constraint("DistanceX", 47, 1, 47, 2, 1.667638))
sketch2.addConstraint(Sketcher.Constraint("DistanceX", 59, 1, 59, 2, 2.930769))
sketch2.addConstraint(Sketcher.Constraint("DistanceX", 61, 2, 61, 1, 2.930769))
sketch2.addConstraint(Sketcher.Constraint("DistanceX", 63, 1, 63, 2, 2.930769))
sketch2.addConstraint(Sketcher.Constraint("DistanceX", 65, 2, 65, 1, 1.585592))
sketch2.addConstraint(Sketcher.Constraint("DistanceY", 58, 2, 58, 1, 4.274038))
sketch2.addConstraint(Sketcher.Constraint("DistanceY", 62, 2, 62, 1, 1.831731))
sketch2.addConstraint(Sketcher.Constraint("DistanceX", -1, 1, 47, 2, 7.312702))
sketch2.addConstraint(Sketcher.Constraint("Distance", 1, 1.887381))
sketch2.addConstraint(Sketcher.Constraint("Distance", 30, 9.659858))
sketch2.addConstraint(Sketcher.Constraint("Distance", 40, 6.99502))
sketch2.addConstraint(Sketcher.Constraint("Distance", 41, 6.990259))
sketch2.addConstraint(Sketcher.Constraint("Distance", 43, 9.659858))
sketch2.addConstraint(Sketcher.Constraint("Distance", 53, 6.99502))
sketch2.addConstraint(Sketcher.Constraint("Distance", 54, 6.990259))
sketch2.addConstraint(Sketcher.Constraint("Distance", 73, 3.601519))
sketch2.addConstraint(Sketcher.Constraint("Distance", 75, 3.601519))
sketch2.addConstraint(Sketcher.Constraint("DistanceX", 0, 2, 0, 1, 2.642653))
sketch2.addConstraint(Sketcher.Constraint("DistanceX", 2, 1, 2, 2, 1.953846))
sketch2.addConstraint(Sketcher.Constraint("DistanceX", 31, 1, 31, 2, 1.732512))
sketch2.addConstraint(Sketcher.Constraint("DistanceX", 37, 1, 37, 2, 1.730604))
sketch2.addConstraint(Sketcher.Constraint("DistanceX", 39, 2, 39, 1, 1.757317))
sketch2.addConstraint(Sketcher.Constraint("DistanceX", 44, 1, 44, 2, 1.732512))
sketch2.addConstraint(Sketcher.Constraint("DistanceX", 50, 1, 50, 2, 1.730604))
sketch2.addConstraint(Sketcher.Constraint("DistanceX", 52, 2, 52, 1, 1.757317))
sketch2.addConstraint(Sketcher.Constraint("DistanceX", 55, 2, 55, 1, 4.640385))
sketch2.addConstraint(Sketcher.Constraint("DistanceX", 69, 1, 69, 2, 4.150015))
sketch2.addConstraint(Sketcher.Constraint("DistanceX", 71, 1, 71, 2, 1.826007))
sketch2.addConstraint(Sketcher.Constraint("DistanceX", 74, 2, 74, 1, 2.854447))
sketch2.addConstraint(Sketcher.Constraint("DistanceX", 78, 1, 78, 2, 1.709615))
sketch2.addConstraint(Sketcher.Constraint("DistanceX", 81, 1, 81, 2, 1.551247))
sketch2.addConstraint(Sketcher.Constraint("DistanceX", 83, 2, 83, 1, 1.709615))
sketch2.addConstraint(Sketcher.Constraint("DistanceY", 11, 1, 11, 2, 0.866256))
sketch2.addConstraint(Sketcher.Constraint("DistanceY", 60, 2, 60, 1, 1.709615))
sketch2.addConstraint(Sketcher.Constraint("DistanceY", 79, 2, 79, 1, 6.248873))
sketch2.addConstraint(Sketcher.Constraint("DistanceY", 84, 1, 84, 2, 6.267954))
sketch2.addConstraint(Sketcher.Constraint("DistanceX", 0, 2, -1, 1, 34.68545))
sketch2.addConstraint(Sketcher.Constraint("DistanceY", 0, 2, -1, 1, 8.193229))
sketch2.addConstraint(Sketcher.Constraint("DistanceY", -1, 1, 11, 2, 1.331771))
sketch2.addConstraint(Sketcher.Constraint("DistanceY", 29, 2, -1, 1, 8.193229))
sketch2.addConstraint(Sketcher.Constraint("DistanceY", -1, 1, 30, 2, 1.331771))
sketch2.addConstraint(Sketcher.Constraint("DistanceX", 32, 2, -1, 1, 8.16924))
sketch2.addConstraint(Sketcher.Constraint("DistanceY", 32, 2, -1, 1, 4.68432))
sketch2.addConstraint(Sketcher.Constraint("DistanceX", 33, 2, -1, 1, 6.200129))
sketch2.addConstraint(Sketcher.Constraint("DistanceY", -1, 1, 33, 2, 1.331771))
sketch2.addConstraint(Sketcher.Constraint("DistanceX", 35, 2, -1, 1, 2.551932))
sketch2.addConstraint(Sketcher.Constraint("DistanceY", 35, 2, -1, 1, 4.68432))
sketch2.addConstraint(Sketcher.Constraint("DistanceX", 36, 2, -1, 1, 1.53494))
sketch2.addConstraint(Sketcher.Constraint("DistanceY", -1, 1, 36, 2, 1.331771))
sketch2.addConstraint(Sketcher.Constraint("DistanceY", 38, 2, -1, 1, 8.193229))
sketch2.addConstraint(Sketcher.Constraint("DistanceX", 39, 2, -1, 1, 3.172049))
sketch2.addConstraint(Sketcher.Constraint("DistanceY", 40, 2, -1, 1, 1.549389))
sketch2.addConstraint(Sketcher.Constraint("DistanceY", 42, 2, -1, 1, 8.193229))
sketch2.addConstraint(Sketcher.Constraint("DistanceY", -1, 1, 43, 2, 1.331771))
sketch2.addConstraint(Sketcher.Constraint("DistanceX", -1, 1, 44, 2, 2.660869))
sketch2.addConstraint(Sketcher.Constraint("DistanceY", 45, 2, -1, 1, 4.68432))
sketch2.addConstraint(Sketcher.Constraint("DistanceY", -1, 1, 46, 2, 1.331771))
sketch2.addConstraint(Sketcher.Constraint("DistanceX", -1, 1, 48, 2, 9.29326))
sketch2.addConstraint(Sketcher.Constraint("DistanceY", 48, 2, -1, 1, 4.68432))
sketch2.addConstraint(Sketcher.Constraint("DistanceY", -1, 1, 49, 2, 1.331771))
sketch2.addConstraint(Sketcher.Constraint("DistanceX", -1, 1, 51, 2, 10.43046))
sketch2.addConstraint(Sketcher.Constraint("DistanceY", 51, 2, -1, 1, 8.193229))
sketch2.addConstraint(Sketcher.Constraint("DistanceX", -1, 1, 55, 2, 17.291818))
sketch2.addConstraint(Sketcher.Constraint("DistanceY", 55, 2, -1, 1, 8.193229))
sketch2.addConstraint(Sketcher.Constraint("DistanceY", 65, 2, -1, 1, 8.193229))
sketch2.addConstraint(Sketcher.Constraint("DistanceY", -1, 1, 66, 2, 1.331771))
sketch2.addConstraint(Sketcher.Constraint("DistanceX", -1, 1, 67, 2, 24.550051))
sketch2.addConstraint(Sketcher.Constraint("DistanceX", -1, 1, 69, 2, 29.440391))
sketch2.addConstraint(Sketcher.Constraint("DistanceY", -1, 1, 70, 2, 1.331771))
sketch2.addConstraint(Sketcher.Constraint("DistanceX", -1, 1, 73, 2, 28.793561))
sketch2.addConstraint(Sketcher.Constraint("DistanceY", 73, 2, -1, 1, 2.331691))
sketch2.addConstraint(Sketcher.Constraint("DistanceX", -1, 1, 76, 2, 33.411049))
sketch2.addConstraint(Sketcher.Constraint("DistanceY", 76, 2, -1, 1, 8.193229))
sketch2.addConstraint(Sketcher.Constraint("DistanceY", -1, 1, 80, 2, 1.331771))
sketch2.addConstraint(Sketcher.Constraint("Distance", 10, 4.118395))
sketch2.addConstraint(Sketcher.Constraint("Distance", 45, 6.101126))
sketch2.addConstraint(Sketcher.Constraint("Distance", 49, 6.101444))
pad2 = body.newObject("PartDesign::Pad", "Pad001")
pad2.Profile = sketch2
pad2.Length = Q("0.1 in")
pad2.Reversed = True

doc.recompute()
